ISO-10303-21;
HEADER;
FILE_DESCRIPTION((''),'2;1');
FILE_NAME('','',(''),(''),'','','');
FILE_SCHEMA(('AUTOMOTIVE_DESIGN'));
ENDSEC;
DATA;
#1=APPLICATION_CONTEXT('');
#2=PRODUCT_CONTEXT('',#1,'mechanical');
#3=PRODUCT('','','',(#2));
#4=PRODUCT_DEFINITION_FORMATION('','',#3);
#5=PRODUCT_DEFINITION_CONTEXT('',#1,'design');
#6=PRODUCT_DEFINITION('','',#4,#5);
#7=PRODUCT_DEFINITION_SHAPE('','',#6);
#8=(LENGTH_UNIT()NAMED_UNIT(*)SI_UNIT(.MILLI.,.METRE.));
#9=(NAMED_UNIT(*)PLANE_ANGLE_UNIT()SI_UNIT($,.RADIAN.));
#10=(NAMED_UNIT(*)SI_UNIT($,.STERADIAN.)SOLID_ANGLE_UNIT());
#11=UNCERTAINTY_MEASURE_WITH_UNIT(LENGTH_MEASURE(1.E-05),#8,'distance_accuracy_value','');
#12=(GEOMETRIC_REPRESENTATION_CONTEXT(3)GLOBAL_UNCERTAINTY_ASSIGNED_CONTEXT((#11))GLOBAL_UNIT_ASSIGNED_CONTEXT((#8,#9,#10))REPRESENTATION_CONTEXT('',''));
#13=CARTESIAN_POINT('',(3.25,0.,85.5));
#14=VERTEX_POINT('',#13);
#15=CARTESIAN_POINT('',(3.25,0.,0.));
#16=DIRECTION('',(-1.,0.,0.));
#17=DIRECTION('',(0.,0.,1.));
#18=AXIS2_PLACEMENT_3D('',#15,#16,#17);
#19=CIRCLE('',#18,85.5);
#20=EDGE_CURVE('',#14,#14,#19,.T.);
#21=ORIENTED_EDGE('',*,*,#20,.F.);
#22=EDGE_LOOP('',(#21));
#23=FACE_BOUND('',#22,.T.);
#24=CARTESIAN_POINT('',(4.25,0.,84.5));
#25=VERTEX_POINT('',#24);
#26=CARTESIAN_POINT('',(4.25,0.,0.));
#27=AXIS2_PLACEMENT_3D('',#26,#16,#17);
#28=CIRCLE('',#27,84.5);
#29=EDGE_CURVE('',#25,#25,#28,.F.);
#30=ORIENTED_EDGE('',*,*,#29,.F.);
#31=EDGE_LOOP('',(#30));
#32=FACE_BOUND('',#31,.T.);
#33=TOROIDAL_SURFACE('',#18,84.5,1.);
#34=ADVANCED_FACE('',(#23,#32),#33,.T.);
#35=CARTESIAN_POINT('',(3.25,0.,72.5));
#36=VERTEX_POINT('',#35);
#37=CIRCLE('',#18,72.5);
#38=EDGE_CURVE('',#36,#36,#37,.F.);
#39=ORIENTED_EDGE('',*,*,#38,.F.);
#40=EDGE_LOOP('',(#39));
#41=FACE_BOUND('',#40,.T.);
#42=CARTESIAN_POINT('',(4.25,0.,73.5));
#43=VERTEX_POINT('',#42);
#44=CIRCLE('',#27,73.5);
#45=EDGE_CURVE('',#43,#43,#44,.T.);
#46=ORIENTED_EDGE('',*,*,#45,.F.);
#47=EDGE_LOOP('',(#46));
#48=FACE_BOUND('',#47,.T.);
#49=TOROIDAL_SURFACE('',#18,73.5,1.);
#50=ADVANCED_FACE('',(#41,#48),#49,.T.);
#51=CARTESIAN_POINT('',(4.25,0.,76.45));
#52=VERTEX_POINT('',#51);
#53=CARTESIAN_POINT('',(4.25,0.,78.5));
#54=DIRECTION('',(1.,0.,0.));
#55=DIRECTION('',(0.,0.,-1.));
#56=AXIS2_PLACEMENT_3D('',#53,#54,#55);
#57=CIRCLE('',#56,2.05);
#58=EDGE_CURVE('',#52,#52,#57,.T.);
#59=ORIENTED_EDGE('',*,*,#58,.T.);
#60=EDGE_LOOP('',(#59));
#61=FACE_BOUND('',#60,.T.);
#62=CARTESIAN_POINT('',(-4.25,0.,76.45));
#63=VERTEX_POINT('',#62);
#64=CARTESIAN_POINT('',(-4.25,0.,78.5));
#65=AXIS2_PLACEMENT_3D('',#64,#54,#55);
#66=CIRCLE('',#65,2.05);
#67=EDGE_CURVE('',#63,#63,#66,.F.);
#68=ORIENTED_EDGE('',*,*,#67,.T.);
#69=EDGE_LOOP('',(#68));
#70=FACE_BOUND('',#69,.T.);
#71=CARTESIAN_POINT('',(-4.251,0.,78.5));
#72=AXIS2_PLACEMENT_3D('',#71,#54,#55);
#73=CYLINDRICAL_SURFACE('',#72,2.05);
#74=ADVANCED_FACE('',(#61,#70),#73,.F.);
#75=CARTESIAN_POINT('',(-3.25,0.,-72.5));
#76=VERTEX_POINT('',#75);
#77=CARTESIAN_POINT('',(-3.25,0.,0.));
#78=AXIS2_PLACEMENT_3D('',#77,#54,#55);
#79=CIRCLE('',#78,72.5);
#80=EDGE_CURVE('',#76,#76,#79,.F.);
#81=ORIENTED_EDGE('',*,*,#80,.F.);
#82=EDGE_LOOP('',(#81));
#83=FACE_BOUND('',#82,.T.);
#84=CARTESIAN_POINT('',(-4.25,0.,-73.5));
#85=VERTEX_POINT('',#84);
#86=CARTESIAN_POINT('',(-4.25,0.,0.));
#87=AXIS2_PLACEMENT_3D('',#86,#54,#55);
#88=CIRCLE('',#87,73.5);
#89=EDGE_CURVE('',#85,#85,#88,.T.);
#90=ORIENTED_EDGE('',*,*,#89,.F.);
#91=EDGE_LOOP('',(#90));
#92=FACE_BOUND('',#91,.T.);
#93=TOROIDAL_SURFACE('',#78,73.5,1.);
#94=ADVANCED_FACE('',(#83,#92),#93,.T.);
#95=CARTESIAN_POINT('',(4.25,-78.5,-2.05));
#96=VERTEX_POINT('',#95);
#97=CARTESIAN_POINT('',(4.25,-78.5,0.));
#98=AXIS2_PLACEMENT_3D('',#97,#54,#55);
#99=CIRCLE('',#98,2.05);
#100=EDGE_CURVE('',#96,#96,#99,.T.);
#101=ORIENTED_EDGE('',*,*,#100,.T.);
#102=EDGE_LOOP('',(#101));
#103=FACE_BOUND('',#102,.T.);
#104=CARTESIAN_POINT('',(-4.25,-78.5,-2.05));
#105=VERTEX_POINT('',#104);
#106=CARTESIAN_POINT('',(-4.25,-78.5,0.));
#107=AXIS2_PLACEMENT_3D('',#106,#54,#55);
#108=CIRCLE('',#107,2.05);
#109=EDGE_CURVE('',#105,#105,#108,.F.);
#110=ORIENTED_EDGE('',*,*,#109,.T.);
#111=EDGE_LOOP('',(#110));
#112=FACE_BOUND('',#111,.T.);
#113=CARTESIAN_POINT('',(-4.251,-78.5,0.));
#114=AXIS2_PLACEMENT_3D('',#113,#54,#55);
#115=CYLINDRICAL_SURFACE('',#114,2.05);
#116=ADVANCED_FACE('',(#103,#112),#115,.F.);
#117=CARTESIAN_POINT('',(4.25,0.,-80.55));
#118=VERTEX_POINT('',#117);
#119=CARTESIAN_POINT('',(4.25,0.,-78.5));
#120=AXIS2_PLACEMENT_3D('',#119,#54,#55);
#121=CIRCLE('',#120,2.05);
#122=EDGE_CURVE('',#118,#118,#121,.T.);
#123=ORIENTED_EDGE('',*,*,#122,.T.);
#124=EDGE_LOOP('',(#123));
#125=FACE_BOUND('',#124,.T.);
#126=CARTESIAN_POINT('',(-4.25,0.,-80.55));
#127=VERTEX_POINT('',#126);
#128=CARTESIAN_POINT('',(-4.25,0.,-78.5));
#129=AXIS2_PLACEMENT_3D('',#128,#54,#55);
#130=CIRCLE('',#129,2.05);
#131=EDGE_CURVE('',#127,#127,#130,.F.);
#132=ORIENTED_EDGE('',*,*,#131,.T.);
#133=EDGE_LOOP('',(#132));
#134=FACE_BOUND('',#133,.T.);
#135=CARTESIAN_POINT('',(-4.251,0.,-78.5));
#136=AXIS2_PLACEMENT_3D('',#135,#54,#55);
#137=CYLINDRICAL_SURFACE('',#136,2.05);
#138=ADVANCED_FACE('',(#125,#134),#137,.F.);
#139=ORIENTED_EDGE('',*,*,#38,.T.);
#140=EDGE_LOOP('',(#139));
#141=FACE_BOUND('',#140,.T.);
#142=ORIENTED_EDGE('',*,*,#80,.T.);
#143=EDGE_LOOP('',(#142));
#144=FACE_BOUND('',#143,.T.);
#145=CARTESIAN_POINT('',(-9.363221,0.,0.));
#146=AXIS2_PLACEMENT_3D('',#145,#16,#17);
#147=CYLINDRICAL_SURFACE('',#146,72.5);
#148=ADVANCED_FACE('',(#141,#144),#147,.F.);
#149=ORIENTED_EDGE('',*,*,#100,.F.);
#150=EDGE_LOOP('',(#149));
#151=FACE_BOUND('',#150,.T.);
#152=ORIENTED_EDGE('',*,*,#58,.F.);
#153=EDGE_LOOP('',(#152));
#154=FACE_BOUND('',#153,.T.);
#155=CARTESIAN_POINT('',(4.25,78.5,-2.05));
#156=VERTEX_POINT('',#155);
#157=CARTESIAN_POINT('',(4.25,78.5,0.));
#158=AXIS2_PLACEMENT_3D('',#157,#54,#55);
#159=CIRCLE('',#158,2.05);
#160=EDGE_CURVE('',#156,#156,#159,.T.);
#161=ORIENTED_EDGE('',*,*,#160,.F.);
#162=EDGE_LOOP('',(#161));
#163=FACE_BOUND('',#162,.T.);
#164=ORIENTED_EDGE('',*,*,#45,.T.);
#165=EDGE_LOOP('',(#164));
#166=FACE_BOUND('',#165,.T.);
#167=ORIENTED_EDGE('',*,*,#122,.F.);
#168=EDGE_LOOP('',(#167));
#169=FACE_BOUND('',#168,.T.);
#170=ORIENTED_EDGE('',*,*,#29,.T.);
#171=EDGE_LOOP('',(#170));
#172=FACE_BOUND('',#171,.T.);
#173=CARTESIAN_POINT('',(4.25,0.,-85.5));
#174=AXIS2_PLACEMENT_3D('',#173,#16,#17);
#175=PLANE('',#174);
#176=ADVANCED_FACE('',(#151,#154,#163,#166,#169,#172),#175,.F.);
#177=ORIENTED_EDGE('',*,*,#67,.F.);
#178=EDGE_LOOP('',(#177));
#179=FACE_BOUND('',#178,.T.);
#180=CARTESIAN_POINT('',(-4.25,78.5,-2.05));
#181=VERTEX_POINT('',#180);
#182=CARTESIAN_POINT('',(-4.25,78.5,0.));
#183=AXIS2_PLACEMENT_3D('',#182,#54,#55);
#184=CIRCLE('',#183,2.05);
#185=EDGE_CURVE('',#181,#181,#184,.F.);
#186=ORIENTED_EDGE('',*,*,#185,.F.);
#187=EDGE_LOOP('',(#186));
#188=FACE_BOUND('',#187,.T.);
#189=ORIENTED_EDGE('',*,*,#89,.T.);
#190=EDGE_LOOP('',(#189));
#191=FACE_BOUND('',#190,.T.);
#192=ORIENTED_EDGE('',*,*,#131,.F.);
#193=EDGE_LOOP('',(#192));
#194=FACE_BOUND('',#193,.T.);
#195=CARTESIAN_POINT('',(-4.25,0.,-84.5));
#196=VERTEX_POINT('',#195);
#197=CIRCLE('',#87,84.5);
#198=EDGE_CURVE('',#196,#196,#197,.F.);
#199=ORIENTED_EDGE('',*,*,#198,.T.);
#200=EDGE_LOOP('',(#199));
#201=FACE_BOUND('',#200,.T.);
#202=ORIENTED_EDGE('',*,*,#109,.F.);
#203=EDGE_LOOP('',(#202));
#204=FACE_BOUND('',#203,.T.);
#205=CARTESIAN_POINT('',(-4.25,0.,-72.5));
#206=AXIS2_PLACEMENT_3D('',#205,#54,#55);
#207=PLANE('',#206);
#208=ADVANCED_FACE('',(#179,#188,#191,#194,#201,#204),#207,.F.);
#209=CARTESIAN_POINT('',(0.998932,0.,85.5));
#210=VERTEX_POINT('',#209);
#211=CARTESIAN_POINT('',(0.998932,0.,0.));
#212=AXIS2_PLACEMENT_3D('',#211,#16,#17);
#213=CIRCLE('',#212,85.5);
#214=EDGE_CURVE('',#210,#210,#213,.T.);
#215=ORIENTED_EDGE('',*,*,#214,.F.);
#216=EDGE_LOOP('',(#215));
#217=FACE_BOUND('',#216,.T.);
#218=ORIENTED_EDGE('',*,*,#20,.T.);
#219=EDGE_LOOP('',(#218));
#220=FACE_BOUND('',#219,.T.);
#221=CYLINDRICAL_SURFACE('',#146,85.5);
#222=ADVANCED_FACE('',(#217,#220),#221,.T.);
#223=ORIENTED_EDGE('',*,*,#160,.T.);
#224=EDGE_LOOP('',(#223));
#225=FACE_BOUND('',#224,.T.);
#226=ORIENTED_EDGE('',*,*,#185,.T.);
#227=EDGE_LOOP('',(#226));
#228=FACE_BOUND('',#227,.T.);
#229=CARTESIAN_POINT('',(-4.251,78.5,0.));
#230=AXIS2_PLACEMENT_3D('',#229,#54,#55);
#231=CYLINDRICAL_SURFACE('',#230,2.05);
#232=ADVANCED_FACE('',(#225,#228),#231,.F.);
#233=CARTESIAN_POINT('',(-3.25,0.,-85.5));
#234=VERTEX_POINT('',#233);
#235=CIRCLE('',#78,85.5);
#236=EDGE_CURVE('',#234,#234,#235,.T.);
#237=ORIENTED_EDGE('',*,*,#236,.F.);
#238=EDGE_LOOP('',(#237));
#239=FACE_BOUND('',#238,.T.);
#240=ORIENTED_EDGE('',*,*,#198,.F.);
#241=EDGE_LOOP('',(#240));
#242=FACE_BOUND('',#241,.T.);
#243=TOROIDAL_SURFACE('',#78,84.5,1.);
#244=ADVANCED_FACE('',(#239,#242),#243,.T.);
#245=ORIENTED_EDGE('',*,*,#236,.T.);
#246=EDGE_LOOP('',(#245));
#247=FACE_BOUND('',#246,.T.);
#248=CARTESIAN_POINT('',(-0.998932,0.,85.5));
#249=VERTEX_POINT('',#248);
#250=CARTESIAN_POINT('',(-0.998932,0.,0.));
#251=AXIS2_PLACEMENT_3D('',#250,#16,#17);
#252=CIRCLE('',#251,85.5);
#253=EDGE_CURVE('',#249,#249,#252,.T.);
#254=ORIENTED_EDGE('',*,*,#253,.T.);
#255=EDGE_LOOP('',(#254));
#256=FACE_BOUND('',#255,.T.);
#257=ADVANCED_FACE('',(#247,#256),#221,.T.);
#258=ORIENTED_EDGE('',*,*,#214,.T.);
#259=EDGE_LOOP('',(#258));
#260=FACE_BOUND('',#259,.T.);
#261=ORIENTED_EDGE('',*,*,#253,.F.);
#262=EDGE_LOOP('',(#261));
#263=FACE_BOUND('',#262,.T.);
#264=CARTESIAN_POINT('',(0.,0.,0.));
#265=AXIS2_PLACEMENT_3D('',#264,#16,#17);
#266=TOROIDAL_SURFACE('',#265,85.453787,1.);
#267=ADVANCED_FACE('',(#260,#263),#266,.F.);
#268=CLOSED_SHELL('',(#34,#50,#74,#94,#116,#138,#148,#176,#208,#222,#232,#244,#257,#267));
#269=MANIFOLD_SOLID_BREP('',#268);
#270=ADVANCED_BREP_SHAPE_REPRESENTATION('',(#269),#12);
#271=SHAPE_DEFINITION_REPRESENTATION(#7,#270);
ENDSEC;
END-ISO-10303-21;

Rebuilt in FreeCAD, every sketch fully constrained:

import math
import FreeCAD as App
import Part
import Sketcher


def edges_at(feature, points):
    """Names of the edges that pass closest to the given points."""
    edges = feature.Shape.Edges
    near = lambda p: min(range(len(edges)), key=lambda i: edges[i].distToShape(Part.Vertex(*p))[0])
    return sorted({f"Edge{near(p) + 1}" for p in points})

doc = App.newDocument("Part")
params = doc.addObject("Spreadsheet::Sheet", "Params")
for row, (alias, value) in enumerate([
    ("sketch1_radius", "1 mm"),
    ("sketch1_height", "13 mm"),
    ("sketch1_width", "8.5 mm"),
    ("revolution_angle", "360 deg"),
    ("fillet_radius", "1 mm"),
    ("sketch2_diameter", "4.1 mm"),
    ("sketch3_diameter", "4.1 mm"),
    ("sketch4_diameter", "4.1 mm"),
    ("sketch5_diameter", "4.1 mm"),
], start=1):
    params.set(f"A{row}", alias)
    params.set(f"B{row}", "=" + value)
    params.setAlias(f"B{row}", alias)

body = doc.addObject("PartDesign::Body", "Body")

# Sketch on XZ plane
sketch1 = body.newObject("Sketcher::SketchObject", "Sketch")
sketch1.AttachmentSupport = (doc.getObject("XZ_Plane"), [""])
sketch1.MapMode = "FlatFace"
sketch1.addGeometry(Part.LineSegment(App.Vector(-1, -85.5, 0), App.Vector(-4.2, -85.5, 0)), False)
sketch1.addGeometry(Part.LineSegment(App.Vector(-4.2, -85.5, 0), App.Vector(-4.2, -72.5, 0)), False)
sketch1.addGeometry(Part.LineSegment(App.Vector(-4.2, -72.5, 0), App.Vector(4.2, -72.5, 0)), False)
sketch1.addGeometry(Part.LineSegment(App.Vector(4.2, -72.5, 0), App.Vector(4.2, -85.5, 0)), False)
sketch1.addGeometry(Part.LineSegment(App.Vector(4.2, -85.5, 0), App.Vector(1, -85.5, 0)), False)
sketch1.addGeometry(Part.ArcOfCircle(Part.Circle(App.Vector(0, -85.5, 0), App.Vector(0, 0, 1), 1), math.radians(-3), math.radians(183)), False)
sketch1.addConstraint(Sketcher.Constraint("Coincident", 0, 2, 1, 1))
sketch1.addConstraint(Sketcher.Constraint("Coincident", 1, 2, 2, 1))
sketch1.addConstraint(Sketcher.Constraint("Coincident", 2, 2, 3, 1))
sketch1.addConstraint(Sketcher.Constraint("Coincident", 3, 2, 4, 1))
sketch1.addConstraint(Sketcher.Constraint("Coincident", 4, 2, 5, 1))
sketch1.addConstraint(Sketcher.Constraint("Coincident", 5, 2, 0, 1))
sketch1.addConstraint(Sketcher.Constraint("Horizontal", 0))
sketch1.addConstraint(Sketcher.Constraint("Vertical", 1))
sketch1.addConstraint(Sketcher.Constraint("Horizontal", 2))
sketch1.addConstraint(Sketcher.Constraint("Vertical", 3))
sketch1.addConstraint(Sketcher.Constraint("Horizontal", 4))
sketch1.addConstraint(Sketcher.Constraint("Symmetric", 0, 2, 3, 2, -2))
sketch1.addConstraint(Sketcher.Constraint("PointOnObject", 5, 3, -2))
sketch1.addConstraint(Sketcher.Constraint("Radius", 5, 1.0))
sketch1.addConstraint(Sketcher.Constraint("DistanceY", 1, 1, 1, 2, 13.0))
sketch1.addConstraint(Sketcher.Constraint("DistanceX", 2, 1, 2, 2, 8.5))
sketch1.addConstraint(Sketcher.Constraint("DistanceY", 0, 2, -1, 1, 85.5))
sketch1.addConstraint(Sketcher.Constraint("DistanceX", 0, 2, 0, 1, 3.251068))
sketch1.setExpression("Constraints[13]", "Params.sketch1_radius")
sketch1.setExpression("Constraints[14]", "Params.sketch1_height")
sketch1.setExpression("Constraints[15]", "Params.sketch1_width")
revolution = body.newObject("PartDesign::Revolution", "Revolution")
revolution.Profile = sketch1
revolution.ReferenceAxis = (sketch1, ["H_Axis"])
revolution.setExpression("Angle", "Params.revolution_angle")
doc.recompute()

fillet = body.newObject("PartDesign::Fillet", "Fillet")
fillet.Base = (revolution, edges_at(revolution, [
    (-4.25, 0, -85.5),
    (4.25, 0, -85.5),
    (4.25, 0, -72.5),
    (-4.25, 0, -72.5),
]))
fillet.setExpression("Radius", "Params.fillet_radius")

# Sketch on YZ plane
sketch2 = body.newObject("Sketcher::SketchObject", "Sketch001")
sketch2.AttachmentSupport = (doc.getObject("YZ_Plane"), [""])
sketch2.MapMode = "FlatFace"
sketch2.AttachmentOffset = App.Placement(App.Vector(0, 0, 4.25), App.Rotation())
sketch2.addGeometry(Part.Circle(App.Vector(0, 78.5, 0), App.Vector(0, 0, 1), 2), False)
sketch2.addConstraint(Sketcher.Constraint("PointOnObject", 0, 3, -2))
sketch2.addConstraint(Sketcher.Constraint("Diameter", 0, 4.1))
sketch2.addConstraint(Sketcher.Constraint("DistanceY", -1, 1, 0, 3, 78.5))
sketch2.setExpression("Constraints[1]", "Params.sketch2_diameter")
pocket1 = body.newObject("PartDesign::Pocket", "Pocket")
pocket1.Profile = sketch2
pocket1.Type = "UpToFirst"

# Sketch on YZ plane
sketch3 = body.newObject("Sketcher::SketchObject", "Sketch002")
sketch3.AttachmentSupport = (doc.getObject("YZ_Plane"), [""])
sketch3.MapMode = "FlatFace"
sketch3.AttachmentOffset = App.Placement(App.Vector(0, 0, 4.25), App.Rotation())
sketch3.addGeometry(Part.Circle(App.Vector(78.5, 0, 0), App.Vector(0, 0, 1), 2), False)
sketch3.addConstraint(Sketcher.Constraint("PointOnObject", 0, 3, -1))
sketch3.addConstraint(Sketcher.Constraint("Diameter", 0, 4.1))
sketch3.addConstraint(Sketcher.Constraint("DistanceX", -1, 1, 0, 3, 78.5))
sketch3.setExpression("Constraints[1]", "Params.sketch3_diameter")
pocket2 = body.newObject("PartDesign::Pocket", "Pocket001")
pocket2.Profile = sketch3
pocket2.Type = "UpToFirst"

# Sketch on YZ plane
sketch4 = body.newObject("Sketcher::SketchObject", "Sketch003")
sketch4.AttachmentSupport = (doc.getObject("YZ_Plane"), [""])
sketch4.MapMode = "FlatFace"
sketch4.AttachmentOffset = App.Placement(App.Vector(0, 0, 4.25), App.Rotation())
sketch4.addGeometry(Part.Circle(App.Vector(0, -78.5, 0), App.Vector(0, 0, 1), 2), False)
sketch4.addConstraint(Sketcher.Constraint("PointOnObject", 0, 3, -2))
sketch4.addConstraint(Sketcher.Constraint("Diameter", 0, 4.1))
sketch4.addConstraint(Sketcher.Constraint("DistanceY", 0, 3, -1, 1, 78.5))
sketch4.setExpression("Constraints[1]", "Params.sketch4_diameter")
pocket3 = body.newObject("PartDesign::Pocket", "Pocket002")
pocket3.Profile = sketch4
pocket3.Type = "UpToFirst"

# Sketch on YZ plane
sketch5 = body.newObject("Sketcher::SketchObject", "Sketch004")
sketch5.AttachmentSupport = (doc.getObject("YZ_Plane"), [""])
sketch5.MapMode = "FlatFace"
sketch5.AttachmentOffset = App.Placement(App.Vector(0, 0, 4.25), App.Rotation())
sketch5.addGeometry(Part.Circle(App.Vector(-78.5, 0, 0), App.Vector(0, 0, 1), 2), False)
sketch5.addConstraint(Sketcher.Constraint("PointOnObject", 0, 3, -1))
sketch5.addConstraint(Sketcher.Constraint("Diameter", 0, 4.1))
sketch5.addConstraint(Sketcher.Constraint("DistanceX", 0, 3, -1, 1, 78.5))
sketch5.setExpression("Constraints[1]", "Params.sketch5_diameter")
pocket4 = body.newObject("PartDesign::Pocket", "Pocket003")
pocket4.Profile = sketch5
pocket4.Type = "UpToFirst"

doc.recompute()
